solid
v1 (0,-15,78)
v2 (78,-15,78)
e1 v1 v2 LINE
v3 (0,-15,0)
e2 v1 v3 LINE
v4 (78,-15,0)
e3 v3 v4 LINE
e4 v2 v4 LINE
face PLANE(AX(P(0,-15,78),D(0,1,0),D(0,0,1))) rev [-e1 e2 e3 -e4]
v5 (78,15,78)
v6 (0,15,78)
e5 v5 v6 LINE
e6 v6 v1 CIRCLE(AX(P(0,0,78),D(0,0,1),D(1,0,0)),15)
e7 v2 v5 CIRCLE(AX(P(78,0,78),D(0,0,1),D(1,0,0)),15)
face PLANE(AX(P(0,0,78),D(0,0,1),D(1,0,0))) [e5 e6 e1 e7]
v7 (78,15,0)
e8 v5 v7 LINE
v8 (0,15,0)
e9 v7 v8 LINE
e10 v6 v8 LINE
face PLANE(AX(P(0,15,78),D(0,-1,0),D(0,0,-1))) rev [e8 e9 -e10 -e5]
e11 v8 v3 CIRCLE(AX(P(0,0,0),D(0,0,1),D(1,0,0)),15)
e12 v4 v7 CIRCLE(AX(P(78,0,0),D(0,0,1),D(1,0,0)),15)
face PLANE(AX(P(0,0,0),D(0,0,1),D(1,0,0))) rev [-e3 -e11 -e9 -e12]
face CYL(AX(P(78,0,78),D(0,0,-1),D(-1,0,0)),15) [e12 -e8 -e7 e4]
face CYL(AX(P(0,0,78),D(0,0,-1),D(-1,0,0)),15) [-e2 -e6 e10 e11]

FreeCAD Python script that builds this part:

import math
import FreeCAD as App
import Part
import Sketcher
from FreeCAD import Vector
Q = App.Units.Quantity

doc = App.newDocument("Part")
body = doc.addObject("PartDesign::Body", "Body")

sketch1 = body.newObject("Sketcher::SketchObject", "Sketch")
sketch1.AttachmentSupport = (doc.getObject("XY_Plane"), [""])
sketch1.MapMode = "FlatFace"
sketch1.addGeometry([
    Part.LineSegment(Vector(78, 15, 0), Vector(0, 15, 0)),
    Part.ArcOfCircle(Part.Circle(Vector(0, 0, 0), Vector(0, 0, 1), 15), math.radians(90), math.radians(270)),
    Part.LineSegment(Vector(0, -15, 0), Vector(78, -15, 0)),
    Part.ArcOfCircle(Part.Circle(Vector(78, 0, 0), Vector(0, 0, 1), 15), math.radians(-90), math.radians(90)),
], False)
sketch1.addConstraint([
    Sketcher.Constraint("Tangent", 0, 2, 1, 1),
    Sketcher.Constraint("Tangent", 1, 2, 2, 1),
    Sketcher.Constraint("Tangent", 2, 2, 3, 1),
    Sketcher.Constraint("Tangent", 3, 2, 0, 1),
    Sketcher.Constraint("Horizontal", 0),
    Sketcher.Constraint("Horizontal", 2),
    Sketcher.Constraint("Coincident", 1, 3, -1, 1),
    Sketcher.Constraint("Radius", 1, Q("15 mm")),
    Sketcher.Constraint("DistanceX", 0, 2, 0, 1, Q("78 mm")),
])
pad1 = body.newObject("PartDesign::Pad", "Pad")
pad1.Profile = sketch1
pad1.Length = 78

doc.recompute()
